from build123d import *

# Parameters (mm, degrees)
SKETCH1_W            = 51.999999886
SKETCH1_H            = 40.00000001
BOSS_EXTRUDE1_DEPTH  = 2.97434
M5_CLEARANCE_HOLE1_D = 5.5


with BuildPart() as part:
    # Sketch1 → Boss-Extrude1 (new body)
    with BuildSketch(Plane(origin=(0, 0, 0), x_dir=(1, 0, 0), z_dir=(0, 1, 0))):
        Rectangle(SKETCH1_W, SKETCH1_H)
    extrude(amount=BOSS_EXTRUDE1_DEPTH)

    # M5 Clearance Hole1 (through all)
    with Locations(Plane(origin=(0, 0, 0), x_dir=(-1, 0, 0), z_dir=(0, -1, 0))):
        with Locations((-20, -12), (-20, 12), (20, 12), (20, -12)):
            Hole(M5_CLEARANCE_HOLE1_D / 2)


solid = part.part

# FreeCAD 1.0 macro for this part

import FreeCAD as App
import Part
import Sketcher

V = App.Vector
Q = App.Units.Quantity

doc = App.newDocument("Part")
body = doc.addObject("PartDesign::Body", "Body")

# Sketch on XZ plane
sketch1 = body.newObject("Sketcher::SketchObject", "Sketch")
sketch1.AttachmentSupport = (doc.getObject("XZ_Plane"), [""])
sketch1.MapMode = "FlatFace"
sketch1.addGeometry(Part.LineSegment(V(-26, -20, 0), V(-26, 20, 0)), False)
sketch1.addGeometry(Part.LineSegment(V(-26, 20, 0), V(26, 20, 0)), False)
sketch1.addGeometry(Part.LineSegment(V(26, 20, 0), V(26, -20, 0)), False)
sketch1.addGeometry(Part.LineSegment(V(26, -20, 0), V(-26, -20, 0)), False)
sketch1.addConstraint(Sketcher.Constraint("Coincident", 0, 2, 1, 1))
sketch1.addConstraint(Sketcher.Constraint("Coincident", 1, 2, 2, 1))
sketch1.addConstraint(Sketcher.Constraint("Coincident", 2, 2, 3, 1))
sketch1.addConstraint(Sketcher.Constraint("Coincident", 3, 2, 0, 1))
sketch1.addConstraint(Sketcher.Constraint("Vertical", 0))
sketch1.addConstraint(Sketcher.Constraint("Horizontal", 1))
sketch1.addConstraint(Sketcher.Constraint("Vertical", 2))
sketch1.addConstraint(Sketcher.Constraint("Horizontal", 3))
sketch1.addConstraint(Sketcher.Constraint("Symmetric", 0, 2, 2, 2, -1, 1))
sketch1.addConstraint(Sketcher.Constraint("DistanceX", 1, 1, 1, 2, Q("52 mm")))
sketch1.addConstraint(Sketcher.Constraint("DistanceY", 0, 1, 0, 2, Q("40 mm")))
pad1 = body.newObject("PartDesign::Pad", "Pad")
pad1.Profile = sketch1
pad1.Length = 2.97434
pad1.Reversed = True

# Sketch on XZ plane
sketch2 = body.newObject("Sketcher::SketchObject", "Sketch001")
sketch2.AttachmentSupport = (doc.getObject("XZ_Plane"), [""])
sketch2.MapMode = "FlatFace"
sketch2.addGeometry(Part.Circle(V(20, 12, 0), V(0, 0, 1), 2.75), False)
sketch2.addGeometry(Part.Circle(V(20, -12, 0), V(0, 0, 1), 2.75), False)
sketch2.addGeometry(Part.Circle(V(-20, -12, 0), V(0, 0, 1), 2.75), False)
sketch2.addGeometry(Part.Circle(V(-20, 12, 0), V(0, 0, 1), 2.75), False)
sketch2.addConstraint(Sketcher.Constraint("Equal", 0, 1))
sketch2.addConstraint(Sketcher.Constraint("Equal", 1, 2))
sketch2.addConstraint(Sketcher.Constraint("Equal", 2, 3))
sketch2.addConstraint(Sketcher.Constraint("Symmetric", 0, 3, 2, 3, -1, 1))
sketch2.addConstraint(Sketcher.Constraint("Symmetric", 1, 3, 3, 3, -1, 1))
sketch2.addConstraint(Sketcher.Constraint("Symmetric", 1, 3, 2, 3, -2))
sketch2.addConstraint(Sketcher.Constraint("Diameter", 0, Q("5.5 mm")))
sketch2.addConstraint(Sketcher.Constraint("DistanceX", -1, 1, 0, 3, Q("20 mm")))
sketch2.addConstraint(Sketcher.Constraint("DistanceY", -1, 1, 0, 3, Q("12 mm")))
doc.recompute()
hole = body.newObject("PartDesign::Hole", "Hole")
hole.Profile = sketch2
hole.ThreadType = "None"
hole.Diameter = 5.5
hole.DepthType = "ThroughAll"

doc.recompute()
